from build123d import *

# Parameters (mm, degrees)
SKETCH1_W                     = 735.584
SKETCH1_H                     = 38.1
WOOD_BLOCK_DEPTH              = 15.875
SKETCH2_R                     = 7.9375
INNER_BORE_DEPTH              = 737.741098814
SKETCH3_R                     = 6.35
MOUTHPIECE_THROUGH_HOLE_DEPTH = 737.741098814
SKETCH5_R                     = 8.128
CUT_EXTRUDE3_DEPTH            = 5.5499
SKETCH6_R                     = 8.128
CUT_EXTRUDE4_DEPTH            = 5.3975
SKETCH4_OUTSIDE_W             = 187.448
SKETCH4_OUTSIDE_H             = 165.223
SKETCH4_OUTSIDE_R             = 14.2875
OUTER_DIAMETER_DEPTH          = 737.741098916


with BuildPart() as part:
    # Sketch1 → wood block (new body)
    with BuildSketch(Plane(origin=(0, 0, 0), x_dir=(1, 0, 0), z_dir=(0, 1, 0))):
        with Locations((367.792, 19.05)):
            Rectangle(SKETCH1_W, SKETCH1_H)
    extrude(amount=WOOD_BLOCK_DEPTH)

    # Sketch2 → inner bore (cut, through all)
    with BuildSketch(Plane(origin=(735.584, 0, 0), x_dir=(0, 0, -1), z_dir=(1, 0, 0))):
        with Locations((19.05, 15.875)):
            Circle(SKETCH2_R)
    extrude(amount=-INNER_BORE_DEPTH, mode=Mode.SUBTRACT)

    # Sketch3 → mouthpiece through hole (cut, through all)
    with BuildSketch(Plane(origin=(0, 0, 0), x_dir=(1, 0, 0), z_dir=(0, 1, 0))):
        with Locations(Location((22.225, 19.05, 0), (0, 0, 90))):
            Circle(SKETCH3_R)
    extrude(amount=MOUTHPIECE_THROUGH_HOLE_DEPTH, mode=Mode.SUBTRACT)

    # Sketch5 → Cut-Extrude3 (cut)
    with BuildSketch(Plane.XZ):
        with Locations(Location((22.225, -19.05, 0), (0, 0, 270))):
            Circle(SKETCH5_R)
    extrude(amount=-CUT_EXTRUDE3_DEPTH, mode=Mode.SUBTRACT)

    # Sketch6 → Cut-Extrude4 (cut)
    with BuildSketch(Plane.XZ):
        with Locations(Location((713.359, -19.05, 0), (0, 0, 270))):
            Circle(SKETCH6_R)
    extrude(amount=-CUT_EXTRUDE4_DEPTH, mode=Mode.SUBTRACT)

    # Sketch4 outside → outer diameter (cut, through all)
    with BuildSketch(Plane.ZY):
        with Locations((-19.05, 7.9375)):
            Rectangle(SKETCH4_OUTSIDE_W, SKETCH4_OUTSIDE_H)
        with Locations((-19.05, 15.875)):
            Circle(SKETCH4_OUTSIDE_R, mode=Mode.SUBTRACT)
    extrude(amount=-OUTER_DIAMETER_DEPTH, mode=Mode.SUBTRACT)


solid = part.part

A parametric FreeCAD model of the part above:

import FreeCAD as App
import Part
import Sketcher
from FreeCAD import Vector
Q = App.Units.Quantity

doc = App.newDocument("Part")
body = doc.addObject("PartDesign::Body", "Body")

# Sketch on XZ plane
sketch1 = body.newObject("Sketcher::SketchObject", "Sketch")
sketch1.AttachmentSupport = (doc.getObject("XZ_Plane"), [""])
sketch1.MapMode = "FlatFace"
sketch1.addGeometry(Part.LineSegment(Vector(0, -38, 0), Vector(0, 0, 0)), False)
sketch1.addGeometry(Part.LineSegment(Vector(0, 0, 0), Vector(736, 0, 0)), False)
sketch1.addGeometry(Part.LineSegment(Vector(736, 0, 0), Vector(736, -38, 0)), False)
sketch1.addGeometry(Part.LineSegment(Vector(736, -38, 0), Vector(0, -38, 0)), False)
sketch1.addConstraint(Sketcher.Constraint("Coincident", 0, 2, 1, 1))
sketch1.addConstraint(Sketcher.Constraint("Coincident", 1, 2, 2, 1))
sketch1.addConstraint(Sketcher.Constraint("Coincident", 2, 2, 3, 1))
sketch1.addConstraint(Sketcher.Constraint("Coincident", 3, 2, 0, 1))
sketch1.addConstraint(Sketcher.Constraint("Vertical", 0))
sketch1.addConstraint(Sketcher.Constraint("Horizontal", 1))
sketch1.addConstraint(Sketcher.Constraint("Vertical", 2))
sketch1.addConstraint(Sketcher.Constraint("Horizontal", 3))
sketch1.addConstraint(Sketcher.Constraint("Coincident", 0, 2, -1, 1))
sketch1.addConstraint(Sketcher.Constraint("DistanceY", 0, 1, 0, 2, Q("1.5 in")))
sketch1.addConstraint(Sketcher.Constraint("DistanceX", 1, 1, 1, 2, Q("28.96 in")))
pad1 = body.newObject("PartDesign::Pad", "Pad")
pad1.Profile = sketch1
pad1.Length = Q("0.625 in")
pad1.Reversed = True

# Sketch on YZ plane
sketch2 = body.newObject("Sketcher::SketchObject", "Sketch001")
sketch2.AttachmentSupport = (doc.getObject("YZ_Plane"), [""])
sketch2.MapMode = "FlatFace"
sketch2.AttachmentOffset = App.Placement(Vector(0, 0, 28.96 * 25.4), App.Rotation())
sketch2.addGeometry(Part.Circle(Vector(16, -19, 0), Vector(0, 0, 1), 8), False)
sketch2.addConstraint(Sketcher.Constraint("Diameter", 0, Q("0.625 in")))
sketch2.addConstraint(Sketcher.Constraint("DistanceY", 0, 3, -1, 1, Q("0.75 in")))
sketch2.addConstraint(Sketcher.Constraint("DistanceX", -1, 1, 0, 3, Q("0.625 in")))
pocket1 = body.newObject("PartDesign::Pocket", "Pocket")
pocket1.Profile = sketch2
pocket1.Type = "ThroughAll"

# Sketch on XZ plane
sketch3 = body.newObject("Sketcher::SketchObject", "Sketch002")
sketch3.AttachmentSupport = (doc.getObject("XZ_Plane"), [""])
sketch3.MapMode = "FlatFace"
sketch3.addGeometry(Part.Circle(Vector(22, -19, 0), Vector(0, 0, 1), 6), False)
sketch3.addConstraint(Sketcher.Constraint("Diameter", 0, Q("0.5 in")))
sketch3.addConstraint(Sketcher.Constraint("DistanceY", 0, 3, -1, 1, Q("0.75 in")))
sketch3.addConstraint(Sketcher.Constraint("DistanceX", -1, 1, 0, 3, Q("0.875 in")))
pocket2 = body.newObject("PartDesign::Pocket", "Pocket001")
pocket2.Profile = sketch3
pocket2.Type = "ThroughAll"

# Sketch on XZ plane
sketch4 = body.newObject("Sketcher::SketchObject", "Sketch003")
sketch4.AttachmentSupport = (doc.getObject("XZ_Plane"), [""])
sketch4.MapMode = "FlatFace"
sketch4.addGeometry(Part.Circle(Vector(22, -19, 0), Vector(0, 0, 1), 8), False)
sketch4.addConstraint(Sketcher.Constraint("Diameter", 0, Q("0.64 in")))
sketch4.addConstraint(Sketcher.Constraint("DistanceY", 0, 3, -1, 1, Q("0.75 in")))
sketch4.addConstraint(Sketcher.Constraint("DistanceX", -1, 1, 0, 3, Q("0.875 in")))
pocket3 = body.newObject("PartDesign::Pocket", "Pocket002")
pocket3.Profile = sketch4
pocket3.Length = Q("0.2185 in")

# Sketch on XZ plane
sketch5 = body.newObject("Sketcher::SketchObject", "Sketch004")
sketch5.AttachmentSupport = (doc.getObject("XZ_Plane"), [""])
sketch5.MapMode = "FlatFace"
sketch5.addGeometry(Part.Circle(Vector(713, -19, 0), Vector(0, 0, 1), 8), False)
sketch5.addConstraint(Sketcher.Constraint("Diameter", 0, Q("0.64 in")))
sketch5.addConstraint(Sketcher.Constraint("DistanceY", 0, 3, -1, 1, Q("0.75 in")))
sketch5.addConstraint(Sketcher.Constraint("DistanceX", -1, 1, 0, 3, Q("28.085 in")))
pocket4 = body.newObject("PartDesign::Pocket", "Pocket003")
pocket4.Profile = sketch5
pocket4.Length = Q("0.2125 in")

# Sketch on YZ plane
sketch6 = body.newObject("Sketcher::SketchObject", "Sketch005")
sketch6.AttachmentSupport = (doc.getObject("YZ_Plane"), [""])
sketch6.MapMode = "FlatFace"
sketch6.addGeometry(Part.LineSegment(Vector(91, -113, 0), Vector(-75, -113, 0)), False)
sketch6.addGeometry(Part.LineSegment(Vector(-75, -113, 0), Vector(-75, 75, 0)), False)
sketch6.addGeometry(Part.LineSegment(Vector(-75, 75, 0), Vector(91, 75, 0)), False)
sketch6.addGeometry(Part.LineSegment(Vector(91, 75, 0), Vector(91, -113, 0)), False)
sketch6.addGeometry(Part.Circle(Vector(16, -19, 0), Vector(0, 0, 1), 14), False)
sketch6.addConstraint(Sketcher.Constraint("Coincident", 0, 2, 1, 1))
sketch6.addConstraint(Sketcher.Constraint("Coincident", 1, 2, 2, 1))
sketch6.addConstraint(Sketcher.Constraint("Coincident", 2, 2, 3, 1))
sketch6.addConstraint(Sketcher.Constraint("Coincident", 3, 2, 0, 1))
sketch6.addConstraint(Sketcher.Constraint("Horizontal", 0))
sketch6.addConstraint(Sketcher.Constraint("Vertical", 1))
sketch6.addConstraint(Sketcher.Constraint("Horizontal", 2))
sketch6.addConstraint(Sketcher.Constraint("Vertical", 3))
sketch6.addConstraint(Sketcher.Constraint("Diameter", 4, Q("1.125 in")))
sketch6.addConstraint(Sketcher.Constraint("DistanceY", 4, 3, -1, 1, Q("0.75 in")))
sketch6.addConstraint(Sketcher.Constraint("DistanceX", -1, 1, 4, 3, Q("0.625 in")))
sketch6.addConstraint(Sketcher.Constraint("DistanceX", 0, 2, 0, 1, Q("165.223 mm")))
sketch6.addConstraint(Sketcher.Constraint("DistanceY", 1, 1, 1, 2, Q("187.448 mm")))
sketch6.addConstraint(Sketcher.Constraint("DistanceX", 0, 2, -1, 1, Q("74.674 mm")))
sketch6.addConstraint(Sketcher.Constraint("DistanceY", 0, 2, -1, 1, Q("112.774 mm")))
pocket5 = body.newObject("PartDesign::Pocket", "Pocket004")
pocket5.Profile = sketch6
pocket5.Type = "ThroughAll"
pocket5.Reversed = True

doc.recompute()
